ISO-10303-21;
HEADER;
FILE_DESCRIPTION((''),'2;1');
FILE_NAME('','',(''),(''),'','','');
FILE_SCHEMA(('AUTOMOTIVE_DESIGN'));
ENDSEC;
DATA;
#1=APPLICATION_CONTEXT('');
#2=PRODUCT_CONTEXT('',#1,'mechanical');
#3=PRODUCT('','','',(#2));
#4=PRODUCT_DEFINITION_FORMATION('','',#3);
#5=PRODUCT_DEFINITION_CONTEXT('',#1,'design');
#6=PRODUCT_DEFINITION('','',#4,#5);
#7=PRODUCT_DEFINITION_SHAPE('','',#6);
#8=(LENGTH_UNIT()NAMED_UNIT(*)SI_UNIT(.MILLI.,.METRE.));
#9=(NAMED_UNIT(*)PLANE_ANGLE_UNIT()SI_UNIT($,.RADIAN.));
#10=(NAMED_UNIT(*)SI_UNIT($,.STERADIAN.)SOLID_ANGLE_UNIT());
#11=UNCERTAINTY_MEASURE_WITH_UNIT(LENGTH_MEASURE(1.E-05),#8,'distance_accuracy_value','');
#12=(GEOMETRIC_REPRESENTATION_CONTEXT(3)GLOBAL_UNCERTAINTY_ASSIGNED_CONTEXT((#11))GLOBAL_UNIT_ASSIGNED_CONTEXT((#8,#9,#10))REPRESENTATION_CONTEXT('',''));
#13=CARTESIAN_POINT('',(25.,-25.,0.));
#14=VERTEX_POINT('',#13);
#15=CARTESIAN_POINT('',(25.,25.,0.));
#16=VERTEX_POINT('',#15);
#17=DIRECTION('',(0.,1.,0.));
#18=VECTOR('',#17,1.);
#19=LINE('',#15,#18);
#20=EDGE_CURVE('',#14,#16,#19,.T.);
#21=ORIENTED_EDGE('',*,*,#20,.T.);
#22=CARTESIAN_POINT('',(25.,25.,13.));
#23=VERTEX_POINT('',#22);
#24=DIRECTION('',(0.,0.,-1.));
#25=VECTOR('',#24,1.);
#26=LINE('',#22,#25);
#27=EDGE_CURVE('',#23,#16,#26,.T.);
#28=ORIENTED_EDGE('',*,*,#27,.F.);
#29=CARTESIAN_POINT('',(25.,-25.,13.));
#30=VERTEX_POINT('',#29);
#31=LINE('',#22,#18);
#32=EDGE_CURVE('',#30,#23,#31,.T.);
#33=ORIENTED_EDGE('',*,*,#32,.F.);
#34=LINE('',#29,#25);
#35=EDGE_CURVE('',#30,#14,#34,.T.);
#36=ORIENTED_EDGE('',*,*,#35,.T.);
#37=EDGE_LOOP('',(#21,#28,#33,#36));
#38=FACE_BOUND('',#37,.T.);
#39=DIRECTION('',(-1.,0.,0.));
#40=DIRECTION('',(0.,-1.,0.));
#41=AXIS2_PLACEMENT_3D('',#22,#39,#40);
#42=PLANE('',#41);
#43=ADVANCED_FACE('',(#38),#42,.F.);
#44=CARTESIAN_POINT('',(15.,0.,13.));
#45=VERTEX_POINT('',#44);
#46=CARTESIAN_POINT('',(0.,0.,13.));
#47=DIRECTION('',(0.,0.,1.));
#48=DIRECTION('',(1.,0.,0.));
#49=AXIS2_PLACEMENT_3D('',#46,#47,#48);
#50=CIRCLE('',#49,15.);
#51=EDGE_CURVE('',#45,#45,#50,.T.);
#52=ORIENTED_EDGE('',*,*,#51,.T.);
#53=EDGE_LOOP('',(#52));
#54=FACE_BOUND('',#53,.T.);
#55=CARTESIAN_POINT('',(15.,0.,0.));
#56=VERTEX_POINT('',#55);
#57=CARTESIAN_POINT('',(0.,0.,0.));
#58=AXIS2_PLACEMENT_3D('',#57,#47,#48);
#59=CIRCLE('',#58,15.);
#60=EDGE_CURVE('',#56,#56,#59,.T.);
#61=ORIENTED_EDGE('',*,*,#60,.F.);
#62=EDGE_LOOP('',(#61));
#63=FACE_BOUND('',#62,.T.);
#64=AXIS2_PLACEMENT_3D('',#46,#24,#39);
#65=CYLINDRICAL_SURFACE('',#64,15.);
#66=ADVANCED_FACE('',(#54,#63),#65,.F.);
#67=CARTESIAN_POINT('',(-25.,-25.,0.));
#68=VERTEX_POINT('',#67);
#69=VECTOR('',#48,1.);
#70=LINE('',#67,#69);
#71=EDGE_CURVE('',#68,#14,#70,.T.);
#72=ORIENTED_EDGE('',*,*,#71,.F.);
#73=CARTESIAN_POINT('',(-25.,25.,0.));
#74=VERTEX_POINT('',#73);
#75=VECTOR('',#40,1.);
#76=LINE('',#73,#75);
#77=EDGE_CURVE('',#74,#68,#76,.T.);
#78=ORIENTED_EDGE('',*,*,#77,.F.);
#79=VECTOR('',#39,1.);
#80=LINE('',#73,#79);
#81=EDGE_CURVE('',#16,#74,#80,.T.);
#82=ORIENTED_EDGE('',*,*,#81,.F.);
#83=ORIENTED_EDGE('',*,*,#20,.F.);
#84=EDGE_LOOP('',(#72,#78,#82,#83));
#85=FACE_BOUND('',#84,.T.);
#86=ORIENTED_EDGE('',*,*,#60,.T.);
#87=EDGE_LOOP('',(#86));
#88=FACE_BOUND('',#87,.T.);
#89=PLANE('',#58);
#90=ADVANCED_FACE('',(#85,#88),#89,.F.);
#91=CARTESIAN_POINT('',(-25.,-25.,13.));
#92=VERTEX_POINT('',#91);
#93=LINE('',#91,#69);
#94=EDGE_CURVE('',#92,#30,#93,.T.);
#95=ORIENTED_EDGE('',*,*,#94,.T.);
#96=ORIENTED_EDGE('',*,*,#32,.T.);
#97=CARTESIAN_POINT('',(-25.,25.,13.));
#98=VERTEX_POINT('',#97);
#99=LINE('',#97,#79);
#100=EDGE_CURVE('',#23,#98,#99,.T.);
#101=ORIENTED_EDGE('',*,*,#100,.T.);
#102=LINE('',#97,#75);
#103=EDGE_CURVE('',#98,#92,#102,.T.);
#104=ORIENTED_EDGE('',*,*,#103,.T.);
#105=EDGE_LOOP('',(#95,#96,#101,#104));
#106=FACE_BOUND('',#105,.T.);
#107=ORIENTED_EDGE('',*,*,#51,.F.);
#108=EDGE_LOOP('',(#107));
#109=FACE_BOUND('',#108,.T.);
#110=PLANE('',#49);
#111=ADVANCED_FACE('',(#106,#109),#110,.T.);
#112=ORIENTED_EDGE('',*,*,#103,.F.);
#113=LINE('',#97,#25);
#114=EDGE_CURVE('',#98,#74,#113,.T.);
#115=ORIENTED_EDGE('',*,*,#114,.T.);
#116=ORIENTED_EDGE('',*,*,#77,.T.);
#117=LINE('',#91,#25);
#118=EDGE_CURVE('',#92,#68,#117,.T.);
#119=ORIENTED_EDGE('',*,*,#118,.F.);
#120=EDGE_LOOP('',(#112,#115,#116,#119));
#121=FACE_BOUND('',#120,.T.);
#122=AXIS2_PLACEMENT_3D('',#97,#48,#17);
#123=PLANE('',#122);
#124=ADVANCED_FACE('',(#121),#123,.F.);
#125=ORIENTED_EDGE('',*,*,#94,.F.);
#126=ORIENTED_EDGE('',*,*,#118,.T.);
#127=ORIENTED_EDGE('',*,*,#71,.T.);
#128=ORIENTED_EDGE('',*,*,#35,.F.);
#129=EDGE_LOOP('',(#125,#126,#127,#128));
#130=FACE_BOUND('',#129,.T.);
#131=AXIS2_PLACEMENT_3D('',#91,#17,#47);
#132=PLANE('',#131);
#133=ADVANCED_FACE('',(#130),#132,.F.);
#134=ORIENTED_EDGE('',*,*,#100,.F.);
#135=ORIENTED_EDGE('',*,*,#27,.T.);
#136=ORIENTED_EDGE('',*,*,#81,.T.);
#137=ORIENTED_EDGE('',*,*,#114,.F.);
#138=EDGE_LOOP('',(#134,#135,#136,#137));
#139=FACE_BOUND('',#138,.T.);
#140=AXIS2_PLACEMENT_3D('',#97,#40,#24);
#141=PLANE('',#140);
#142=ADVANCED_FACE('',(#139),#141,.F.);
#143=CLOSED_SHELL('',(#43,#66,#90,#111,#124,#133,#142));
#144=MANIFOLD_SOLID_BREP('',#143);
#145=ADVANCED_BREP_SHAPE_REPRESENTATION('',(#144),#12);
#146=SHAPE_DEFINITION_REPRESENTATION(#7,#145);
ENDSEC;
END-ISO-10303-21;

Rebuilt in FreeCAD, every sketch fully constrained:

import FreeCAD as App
import Part
import Sketcher

V = App.Vector

doc = App.newDocument("Part")
body = doc.addObject("PartDesign::Body", "Body")

sketch1 = body.newObject("Sketcher::SketchObject", "Sketch")
sketch1.AttachmentSupport = (doc.getObject("XY_Plane"), [""])
sketch1.MapMode = "FlatFace"
sketch1.addGeometry([
    Part.LineSegment(V(-25, 25, 0), V(-25, -25, 0)),
    Part.LineSegment(V(-25, -25, 0), V(25, -25, 0)),
    Part.LineSegment(V(25, -25, 0), V(25, 25, 0)),
    Part.LineSegment(V(25, 25, 0), V(-25, 25, 0)),
    Part.Circle(V(0, 0, 0), V(0, 0, 1), 15),
], False)
sketch1.addConstraint([
    Sketcher.Constraint("Coincident", 0, 2, 1, 1),
    Sketcher.Constraint("Coincident", 1, 2, 2, 1),
    Sketcher.Constraint("Coincident", 2, 2, 3, 1),
    Sketcher.Constraint("Coincident", 3, 2, 0, 1),
    Sketcher.Constraint("Vertical", 0),
    Sketcher.Constraint("Horizontal", 1),
    Sketcher.Constraint("Vertical", 2),
    Sketcher.Constraint("Horizontal", 3),
    Sketcher.Constraint("Coincident", 4, 3, -1, 1),
    Sketcher.Constraint("Symmetric", 0, 2, 2, 2, -1, 1),
    Sketcher.Constraint("Equal", 3, 0),
    Sketcher.Constraint("Diameter", 4, 30.0),
    Sketcher.Constraint("DistanceX", 1, 1, 1, 2, 50.0),
])
pad1 = body.newObject("PartDesign::Pad", "Pad")
pad1.Profile = sketch1
pad1.Length = 13

doc.recompute()
